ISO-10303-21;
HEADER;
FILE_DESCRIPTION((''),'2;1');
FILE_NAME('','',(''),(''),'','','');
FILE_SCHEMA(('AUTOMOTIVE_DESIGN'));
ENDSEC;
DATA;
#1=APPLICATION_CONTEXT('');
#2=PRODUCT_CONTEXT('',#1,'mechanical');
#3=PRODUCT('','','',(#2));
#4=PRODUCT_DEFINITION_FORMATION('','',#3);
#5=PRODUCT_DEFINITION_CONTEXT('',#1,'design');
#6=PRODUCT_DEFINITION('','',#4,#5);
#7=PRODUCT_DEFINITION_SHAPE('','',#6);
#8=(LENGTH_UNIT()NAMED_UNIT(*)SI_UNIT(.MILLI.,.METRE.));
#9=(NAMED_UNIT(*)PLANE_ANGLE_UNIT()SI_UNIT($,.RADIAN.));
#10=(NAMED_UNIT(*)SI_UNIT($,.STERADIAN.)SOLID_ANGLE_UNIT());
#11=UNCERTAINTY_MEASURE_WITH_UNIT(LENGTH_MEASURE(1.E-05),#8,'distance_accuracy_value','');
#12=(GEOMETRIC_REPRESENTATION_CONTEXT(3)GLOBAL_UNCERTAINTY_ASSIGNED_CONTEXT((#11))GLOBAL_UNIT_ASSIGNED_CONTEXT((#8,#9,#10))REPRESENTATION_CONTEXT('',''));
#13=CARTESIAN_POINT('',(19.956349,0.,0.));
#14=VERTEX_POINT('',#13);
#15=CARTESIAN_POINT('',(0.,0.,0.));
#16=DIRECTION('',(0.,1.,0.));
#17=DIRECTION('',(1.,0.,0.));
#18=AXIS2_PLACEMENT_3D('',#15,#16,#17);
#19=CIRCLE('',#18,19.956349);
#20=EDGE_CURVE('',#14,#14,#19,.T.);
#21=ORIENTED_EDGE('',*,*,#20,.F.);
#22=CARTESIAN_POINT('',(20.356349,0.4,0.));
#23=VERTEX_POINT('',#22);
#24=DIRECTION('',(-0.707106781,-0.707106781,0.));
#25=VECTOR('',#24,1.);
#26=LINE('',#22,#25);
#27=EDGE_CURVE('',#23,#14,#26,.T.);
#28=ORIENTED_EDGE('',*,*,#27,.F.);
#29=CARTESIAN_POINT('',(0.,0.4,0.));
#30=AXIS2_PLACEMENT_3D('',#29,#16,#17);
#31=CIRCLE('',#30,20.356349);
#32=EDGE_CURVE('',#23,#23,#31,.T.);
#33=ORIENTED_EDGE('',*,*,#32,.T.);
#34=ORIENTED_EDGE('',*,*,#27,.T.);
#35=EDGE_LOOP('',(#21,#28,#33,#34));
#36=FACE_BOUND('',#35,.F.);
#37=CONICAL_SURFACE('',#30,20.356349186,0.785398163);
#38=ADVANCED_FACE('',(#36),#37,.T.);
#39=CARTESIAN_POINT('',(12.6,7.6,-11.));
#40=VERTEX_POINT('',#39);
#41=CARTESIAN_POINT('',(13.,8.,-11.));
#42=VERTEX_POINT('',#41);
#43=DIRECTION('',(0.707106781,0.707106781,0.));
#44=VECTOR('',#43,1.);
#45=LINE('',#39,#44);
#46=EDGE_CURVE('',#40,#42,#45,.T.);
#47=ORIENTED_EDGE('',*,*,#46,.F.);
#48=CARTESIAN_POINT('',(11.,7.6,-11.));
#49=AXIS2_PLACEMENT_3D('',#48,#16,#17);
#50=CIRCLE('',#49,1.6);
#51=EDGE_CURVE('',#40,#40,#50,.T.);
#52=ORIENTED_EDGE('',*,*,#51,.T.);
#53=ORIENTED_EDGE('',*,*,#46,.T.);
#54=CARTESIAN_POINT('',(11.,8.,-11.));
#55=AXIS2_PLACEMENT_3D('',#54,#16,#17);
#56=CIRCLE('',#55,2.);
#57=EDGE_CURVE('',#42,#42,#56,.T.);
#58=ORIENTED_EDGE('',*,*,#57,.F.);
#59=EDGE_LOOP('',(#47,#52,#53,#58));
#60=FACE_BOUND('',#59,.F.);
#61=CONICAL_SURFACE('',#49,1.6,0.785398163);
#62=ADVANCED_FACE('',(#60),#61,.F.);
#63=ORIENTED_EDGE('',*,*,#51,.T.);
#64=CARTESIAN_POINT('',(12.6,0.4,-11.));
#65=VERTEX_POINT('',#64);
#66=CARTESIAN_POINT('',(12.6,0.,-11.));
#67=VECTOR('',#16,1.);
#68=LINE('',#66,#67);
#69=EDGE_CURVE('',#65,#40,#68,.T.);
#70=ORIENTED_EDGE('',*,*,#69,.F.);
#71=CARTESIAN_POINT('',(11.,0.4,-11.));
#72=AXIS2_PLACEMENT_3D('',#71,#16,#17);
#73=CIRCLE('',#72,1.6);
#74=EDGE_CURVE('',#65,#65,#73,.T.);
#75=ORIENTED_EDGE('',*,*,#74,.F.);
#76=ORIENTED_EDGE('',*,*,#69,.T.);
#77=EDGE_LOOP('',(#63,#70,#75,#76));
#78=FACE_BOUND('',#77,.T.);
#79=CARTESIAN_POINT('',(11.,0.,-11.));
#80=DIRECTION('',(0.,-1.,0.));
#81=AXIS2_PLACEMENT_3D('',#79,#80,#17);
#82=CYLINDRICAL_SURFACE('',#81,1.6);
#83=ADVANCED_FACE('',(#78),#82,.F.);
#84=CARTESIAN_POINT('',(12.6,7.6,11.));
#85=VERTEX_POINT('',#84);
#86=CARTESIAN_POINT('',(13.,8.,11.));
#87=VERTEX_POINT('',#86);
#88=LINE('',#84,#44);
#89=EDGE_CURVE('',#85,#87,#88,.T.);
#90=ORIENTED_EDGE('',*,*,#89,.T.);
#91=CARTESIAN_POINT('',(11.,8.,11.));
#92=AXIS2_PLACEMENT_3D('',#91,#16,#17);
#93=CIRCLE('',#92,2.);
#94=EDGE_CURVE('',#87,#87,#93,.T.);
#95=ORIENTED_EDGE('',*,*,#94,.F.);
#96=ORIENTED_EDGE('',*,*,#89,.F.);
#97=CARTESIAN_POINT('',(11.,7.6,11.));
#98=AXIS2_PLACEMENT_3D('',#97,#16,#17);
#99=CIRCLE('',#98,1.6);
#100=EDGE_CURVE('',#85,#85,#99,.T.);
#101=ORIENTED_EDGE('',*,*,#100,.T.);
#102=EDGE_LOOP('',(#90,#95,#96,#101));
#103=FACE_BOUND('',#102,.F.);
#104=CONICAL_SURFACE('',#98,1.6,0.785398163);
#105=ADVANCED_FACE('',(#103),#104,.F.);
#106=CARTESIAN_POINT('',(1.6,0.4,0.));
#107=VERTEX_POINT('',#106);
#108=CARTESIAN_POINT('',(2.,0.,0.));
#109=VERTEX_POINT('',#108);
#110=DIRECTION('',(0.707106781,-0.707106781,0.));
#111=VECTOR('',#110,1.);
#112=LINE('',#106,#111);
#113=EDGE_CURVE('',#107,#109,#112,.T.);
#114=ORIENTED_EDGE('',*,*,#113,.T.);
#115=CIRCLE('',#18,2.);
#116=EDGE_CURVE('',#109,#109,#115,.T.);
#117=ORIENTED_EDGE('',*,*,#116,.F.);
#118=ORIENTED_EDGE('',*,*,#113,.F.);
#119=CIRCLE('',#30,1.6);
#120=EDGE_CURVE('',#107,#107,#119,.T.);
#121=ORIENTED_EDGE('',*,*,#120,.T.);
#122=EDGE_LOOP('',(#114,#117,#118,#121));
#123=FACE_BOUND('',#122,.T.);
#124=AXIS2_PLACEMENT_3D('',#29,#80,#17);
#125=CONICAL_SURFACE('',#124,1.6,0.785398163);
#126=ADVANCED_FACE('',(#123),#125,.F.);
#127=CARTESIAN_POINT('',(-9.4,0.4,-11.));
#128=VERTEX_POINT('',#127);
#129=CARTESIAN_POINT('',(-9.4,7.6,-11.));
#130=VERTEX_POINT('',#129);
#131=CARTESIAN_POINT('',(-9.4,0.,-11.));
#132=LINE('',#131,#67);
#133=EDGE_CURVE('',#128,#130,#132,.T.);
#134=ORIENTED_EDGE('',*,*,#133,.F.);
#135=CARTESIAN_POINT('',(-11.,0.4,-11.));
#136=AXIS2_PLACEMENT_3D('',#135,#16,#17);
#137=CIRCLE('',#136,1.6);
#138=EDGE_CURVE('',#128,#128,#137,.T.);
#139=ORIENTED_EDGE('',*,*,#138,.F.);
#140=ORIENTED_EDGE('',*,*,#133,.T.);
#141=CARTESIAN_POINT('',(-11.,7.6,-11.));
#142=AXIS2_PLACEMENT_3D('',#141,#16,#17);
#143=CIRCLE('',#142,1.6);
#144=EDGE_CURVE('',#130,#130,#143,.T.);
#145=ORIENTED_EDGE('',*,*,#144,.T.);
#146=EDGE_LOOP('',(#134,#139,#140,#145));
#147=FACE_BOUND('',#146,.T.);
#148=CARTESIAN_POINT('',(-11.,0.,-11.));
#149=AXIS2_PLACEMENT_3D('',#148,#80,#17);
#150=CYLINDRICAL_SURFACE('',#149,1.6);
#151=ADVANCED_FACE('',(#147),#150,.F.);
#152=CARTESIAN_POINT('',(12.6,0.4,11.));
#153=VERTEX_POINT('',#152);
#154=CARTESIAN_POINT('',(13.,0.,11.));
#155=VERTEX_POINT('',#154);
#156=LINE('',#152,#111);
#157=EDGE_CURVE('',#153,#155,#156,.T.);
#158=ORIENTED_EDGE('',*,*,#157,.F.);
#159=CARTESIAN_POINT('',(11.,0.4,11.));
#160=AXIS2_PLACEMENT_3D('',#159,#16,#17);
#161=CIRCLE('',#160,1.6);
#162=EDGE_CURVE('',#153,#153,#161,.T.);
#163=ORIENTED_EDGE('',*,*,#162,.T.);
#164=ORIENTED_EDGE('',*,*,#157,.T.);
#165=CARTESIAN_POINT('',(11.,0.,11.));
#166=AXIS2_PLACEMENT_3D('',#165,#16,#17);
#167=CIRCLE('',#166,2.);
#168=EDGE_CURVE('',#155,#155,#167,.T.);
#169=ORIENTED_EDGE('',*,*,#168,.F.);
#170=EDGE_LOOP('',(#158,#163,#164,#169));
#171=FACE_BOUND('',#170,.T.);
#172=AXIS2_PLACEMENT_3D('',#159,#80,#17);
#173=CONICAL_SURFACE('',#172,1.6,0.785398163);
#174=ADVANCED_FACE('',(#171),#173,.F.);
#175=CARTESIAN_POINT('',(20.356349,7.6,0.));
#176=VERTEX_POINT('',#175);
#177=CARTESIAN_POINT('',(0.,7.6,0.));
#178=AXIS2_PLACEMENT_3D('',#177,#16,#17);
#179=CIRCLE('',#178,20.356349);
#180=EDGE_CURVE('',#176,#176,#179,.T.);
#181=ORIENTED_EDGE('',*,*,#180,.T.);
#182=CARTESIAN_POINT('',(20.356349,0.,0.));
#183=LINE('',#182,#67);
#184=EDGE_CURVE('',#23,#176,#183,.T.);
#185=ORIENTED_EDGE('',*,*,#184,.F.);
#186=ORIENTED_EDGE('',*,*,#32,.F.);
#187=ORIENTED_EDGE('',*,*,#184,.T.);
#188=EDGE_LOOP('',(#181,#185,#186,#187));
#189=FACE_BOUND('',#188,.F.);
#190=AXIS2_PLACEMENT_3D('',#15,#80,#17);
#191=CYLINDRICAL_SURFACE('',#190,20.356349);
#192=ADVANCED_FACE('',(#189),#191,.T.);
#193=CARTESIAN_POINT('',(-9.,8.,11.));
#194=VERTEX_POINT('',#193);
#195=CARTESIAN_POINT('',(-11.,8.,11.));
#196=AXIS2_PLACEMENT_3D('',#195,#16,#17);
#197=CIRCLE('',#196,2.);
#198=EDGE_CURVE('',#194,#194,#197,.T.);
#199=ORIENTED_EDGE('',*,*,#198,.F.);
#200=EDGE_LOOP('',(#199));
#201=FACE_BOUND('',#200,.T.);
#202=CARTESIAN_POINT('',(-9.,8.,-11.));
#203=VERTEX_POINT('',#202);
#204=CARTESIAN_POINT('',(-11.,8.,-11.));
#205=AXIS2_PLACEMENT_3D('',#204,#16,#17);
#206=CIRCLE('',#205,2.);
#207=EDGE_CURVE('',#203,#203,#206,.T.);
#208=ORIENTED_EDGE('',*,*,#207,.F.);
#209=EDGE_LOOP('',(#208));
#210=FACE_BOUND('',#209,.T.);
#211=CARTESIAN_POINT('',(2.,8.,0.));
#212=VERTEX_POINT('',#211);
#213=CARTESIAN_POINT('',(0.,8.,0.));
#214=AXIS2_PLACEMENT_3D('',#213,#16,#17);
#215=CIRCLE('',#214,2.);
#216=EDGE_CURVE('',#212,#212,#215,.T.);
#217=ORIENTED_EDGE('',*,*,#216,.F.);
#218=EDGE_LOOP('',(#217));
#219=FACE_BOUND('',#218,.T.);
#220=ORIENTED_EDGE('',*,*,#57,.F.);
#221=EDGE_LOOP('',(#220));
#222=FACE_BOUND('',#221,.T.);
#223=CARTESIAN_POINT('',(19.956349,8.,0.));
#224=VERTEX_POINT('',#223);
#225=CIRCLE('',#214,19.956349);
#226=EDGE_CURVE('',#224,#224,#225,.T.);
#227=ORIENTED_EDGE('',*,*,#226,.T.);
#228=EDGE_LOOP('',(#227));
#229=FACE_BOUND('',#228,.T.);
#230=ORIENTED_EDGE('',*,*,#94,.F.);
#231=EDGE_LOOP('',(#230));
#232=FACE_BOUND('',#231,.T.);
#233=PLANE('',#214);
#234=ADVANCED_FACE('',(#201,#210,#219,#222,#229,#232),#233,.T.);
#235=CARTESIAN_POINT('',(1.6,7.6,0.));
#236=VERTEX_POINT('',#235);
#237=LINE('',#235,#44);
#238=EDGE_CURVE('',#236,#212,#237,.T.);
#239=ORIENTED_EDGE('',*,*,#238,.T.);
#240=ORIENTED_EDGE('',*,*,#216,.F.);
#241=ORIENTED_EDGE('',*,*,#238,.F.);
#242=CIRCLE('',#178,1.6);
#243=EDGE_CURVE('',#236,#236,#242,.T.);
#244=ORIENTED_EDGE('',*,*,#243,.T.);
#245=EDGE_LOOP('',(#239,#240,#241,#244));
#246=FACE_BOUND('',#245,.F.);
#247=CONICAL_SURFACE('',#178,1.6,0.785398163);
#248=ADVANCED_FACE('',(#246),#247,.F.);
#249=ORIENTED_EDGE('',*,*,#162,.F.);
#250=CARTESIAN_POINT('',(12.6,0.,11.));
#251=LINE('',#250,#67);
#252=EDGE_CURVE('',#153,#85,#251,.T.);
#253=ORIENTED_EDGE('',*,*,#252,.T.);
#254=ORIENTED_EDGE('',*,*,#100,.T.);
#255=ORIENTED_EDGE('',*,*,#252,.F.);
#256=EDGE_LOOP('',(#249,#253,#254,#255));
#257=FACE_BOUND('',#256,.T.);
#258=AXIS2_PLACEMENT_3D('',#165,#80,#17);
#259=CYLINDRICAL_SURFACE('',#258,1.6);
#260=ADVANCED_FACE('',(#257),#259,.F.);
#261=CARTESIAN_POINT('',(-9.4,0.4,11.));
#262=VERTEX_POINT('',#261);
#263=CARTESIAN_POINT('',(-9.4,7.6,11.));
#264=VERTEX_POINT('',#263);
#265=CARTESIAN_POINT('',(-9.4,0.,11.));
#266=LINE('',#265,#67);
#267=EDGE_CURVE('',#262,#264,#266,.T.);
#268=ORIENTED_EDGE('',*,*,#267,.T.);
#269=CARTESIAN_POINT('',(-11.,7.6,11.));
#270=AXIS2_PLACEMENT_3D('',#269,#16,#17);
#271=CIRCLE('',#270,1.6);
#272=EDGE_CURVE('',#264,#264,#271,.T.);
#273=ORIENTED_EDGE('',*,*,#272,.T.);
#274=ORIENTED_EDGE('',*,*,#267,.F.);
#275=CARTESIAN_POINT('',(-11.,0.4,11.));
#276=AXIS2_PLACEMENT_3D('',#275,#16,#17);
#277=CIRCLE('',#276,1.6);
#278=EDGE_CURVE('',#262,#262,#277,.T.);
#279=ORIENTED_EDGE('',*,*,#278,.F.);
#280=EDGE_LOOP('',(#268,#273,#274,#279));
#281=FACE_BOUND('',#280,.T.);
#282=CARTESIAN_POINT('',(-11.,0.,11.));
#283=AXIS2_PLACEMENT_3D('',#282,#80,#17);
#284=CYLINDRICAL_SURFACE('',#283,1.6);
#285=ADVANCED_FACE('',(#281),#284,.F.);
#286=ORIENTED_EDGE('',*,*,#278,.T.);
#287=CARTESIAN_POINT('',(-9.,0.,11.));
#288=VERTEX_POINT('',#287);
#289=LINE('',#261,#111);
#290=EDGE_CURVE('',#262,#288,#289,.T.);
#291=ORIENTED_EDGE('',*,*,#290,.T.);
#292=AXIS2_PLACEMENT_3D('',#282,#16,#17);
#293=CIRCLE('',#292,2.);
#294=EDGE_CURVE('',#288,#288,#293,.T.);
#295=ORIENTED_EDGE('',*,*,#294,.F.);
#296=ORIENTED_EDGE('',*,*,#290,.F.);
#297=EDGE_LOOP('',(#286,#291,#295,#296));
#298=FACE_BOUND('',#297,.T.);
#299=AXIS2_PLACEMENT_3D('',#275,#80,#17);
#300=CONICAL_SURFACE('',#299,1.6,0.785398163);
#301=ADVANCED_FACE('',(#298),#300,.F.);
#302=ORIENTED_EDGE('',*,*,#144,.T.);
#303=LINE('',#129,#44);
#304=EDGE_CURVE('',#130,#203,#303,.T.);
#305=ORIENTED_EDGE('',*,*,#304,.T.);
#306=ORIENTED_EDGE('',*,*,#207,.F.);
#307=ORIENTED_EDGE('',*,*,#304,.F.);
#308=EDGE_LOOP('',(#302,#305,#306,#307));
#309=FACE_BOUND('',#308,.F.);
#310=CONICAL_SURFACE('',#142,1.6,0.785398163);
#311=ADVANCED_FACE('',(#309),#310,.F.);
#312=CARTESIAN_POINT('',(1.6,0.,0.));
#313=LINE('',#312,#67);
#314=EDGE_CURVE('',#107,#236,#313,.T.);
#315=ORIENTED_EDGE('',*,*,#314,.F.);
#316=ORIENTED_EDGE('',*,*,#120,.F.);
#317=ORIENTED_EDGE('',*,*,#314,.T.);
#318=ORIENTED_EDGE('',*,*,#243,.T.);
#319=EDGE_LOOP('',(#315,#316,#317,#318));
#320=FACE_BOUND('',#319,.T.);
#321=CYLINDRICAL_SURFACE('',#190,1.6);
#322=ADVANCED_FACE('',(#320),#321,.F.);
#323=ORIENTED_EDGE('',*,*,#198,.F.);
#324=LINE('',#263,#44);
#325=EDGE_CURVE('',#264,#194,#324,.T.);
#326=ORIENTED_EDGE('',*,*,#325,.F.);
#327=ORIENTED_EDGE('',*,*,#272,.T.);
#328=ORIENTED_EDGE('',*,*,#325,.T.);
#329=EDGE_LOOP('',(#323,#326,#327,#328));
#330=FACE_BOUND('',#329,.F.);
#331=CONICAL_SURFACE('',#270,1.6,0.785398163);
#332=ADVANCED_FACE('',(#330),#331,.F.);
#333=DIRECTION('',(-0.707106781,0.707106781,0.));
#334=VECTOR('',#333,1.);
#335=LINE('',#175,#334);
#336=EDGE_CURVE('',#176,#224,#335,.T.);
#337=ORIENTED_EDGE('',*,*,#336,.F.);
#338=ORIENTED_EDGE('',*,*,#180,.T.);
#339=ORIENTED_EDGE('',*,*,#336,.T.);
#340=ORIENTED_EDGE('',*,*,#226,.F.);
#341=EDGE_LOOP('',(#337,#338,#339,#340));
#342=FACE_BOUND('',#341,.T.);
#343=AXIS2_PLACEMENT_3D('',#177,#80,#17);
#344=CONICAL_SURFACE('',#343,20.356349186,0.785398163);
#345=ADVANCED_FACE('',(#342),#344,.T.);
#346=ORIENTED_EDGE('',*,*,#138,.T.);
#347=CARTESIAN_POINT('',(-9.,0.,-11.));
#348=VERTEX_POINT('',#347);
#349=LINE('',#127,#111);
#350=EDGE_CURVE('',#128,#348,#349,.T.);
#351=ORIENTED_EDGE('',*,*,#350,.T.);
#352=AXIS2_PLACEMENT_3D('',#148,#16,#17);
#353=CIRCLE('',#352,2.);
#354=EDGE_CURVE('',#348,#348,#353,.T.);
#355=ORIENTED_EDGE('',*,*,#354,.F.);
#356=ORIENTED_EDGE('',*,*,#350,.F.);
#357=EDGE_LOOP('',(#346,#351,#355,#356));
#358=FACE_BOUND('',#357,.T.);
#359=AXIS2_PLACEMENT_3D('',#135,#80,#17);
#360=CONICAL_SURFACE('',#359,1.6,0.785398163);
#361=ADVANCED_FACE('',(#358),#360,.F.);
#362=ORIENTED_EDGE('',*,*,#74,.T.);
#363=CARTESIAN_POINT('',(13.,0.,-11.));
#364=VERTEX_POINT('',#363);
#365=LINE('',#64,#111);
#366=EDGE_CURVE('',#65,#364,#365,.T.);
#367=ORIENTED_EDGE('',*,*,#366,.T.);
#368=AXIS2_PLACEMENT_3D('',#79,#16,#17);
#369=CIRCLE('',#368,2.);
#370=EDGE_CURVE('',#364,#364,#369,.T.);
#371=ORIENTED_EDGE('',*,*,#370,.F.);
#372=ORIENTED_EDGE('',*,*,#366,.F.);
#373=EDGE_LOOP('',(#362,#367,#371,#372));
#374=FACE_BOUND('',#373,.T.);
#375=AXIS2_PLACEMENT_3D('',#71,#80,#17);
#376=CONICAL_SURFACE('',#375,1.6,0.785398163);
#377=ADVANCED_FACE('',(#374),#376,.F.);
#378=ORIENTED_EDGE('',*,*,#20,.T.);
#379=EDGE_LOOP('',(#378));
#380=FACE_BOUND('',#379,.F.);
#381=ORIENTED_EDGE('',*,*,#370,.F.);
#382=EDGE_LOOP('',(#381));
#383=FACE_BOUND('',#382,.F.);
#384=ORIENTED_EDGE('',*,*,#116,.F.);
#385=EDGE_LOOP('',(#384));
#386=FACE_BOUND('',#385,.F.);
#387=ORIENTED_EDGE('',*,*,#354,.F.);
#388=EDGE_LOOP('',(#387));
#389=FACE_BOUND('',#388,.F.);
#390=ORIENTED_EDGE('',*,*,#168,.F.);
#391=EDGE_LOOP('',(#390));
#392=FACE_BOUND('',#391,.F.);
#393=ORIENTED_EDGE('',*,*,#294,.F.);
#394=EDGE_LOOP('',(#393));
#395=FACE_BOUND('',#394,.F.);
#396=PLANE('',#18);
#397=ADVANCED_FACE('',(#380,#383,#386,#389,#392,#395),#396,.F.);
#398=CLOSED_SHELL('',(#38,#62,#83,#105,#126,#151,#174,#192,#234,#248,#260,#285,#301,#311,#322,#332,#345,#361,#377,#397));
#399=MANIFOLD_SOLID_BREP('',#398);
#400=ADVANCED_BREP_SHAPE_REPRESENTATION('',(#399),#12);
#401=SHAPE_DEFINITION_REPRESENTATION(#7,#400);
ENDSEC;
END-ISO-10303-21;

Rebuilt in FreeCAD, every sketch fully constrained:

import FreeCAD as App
import Part
import Sketcher
from FreeCAD import Vector


def edges_at(feature, points):
    """Names of the edges that pass closest to the given points."""
    edges = feature.Shape.Edges
    near = lambda p: min(range(len(edges)), key=lambda i: edges[i].distToShape(Part.Vertex(*p))[0])
    return sorted({f"Edge{near(p) + 1}" for p in points})

doc = App.newDocument("Part")
body = doc.addObject("PartDesign::Body", "Body")

sketch1 = body.newObject("Sketcher::SketchObject", "Sketch")
sketch1.AttachmentSupport = (doc.getObject("XZ_Plane"), [""])
sketch1.MapMode = "FlatFace"
sketch1.addGeometry([
    Part.Circle(Vector(0, 0, 0), Vector(0, 0, 1), 20.4),
    Part.Circle(Vector(-11, 11, 0), Vector(0, 0, 1), 1.6),
    Part.Circle(Vector(0, 0, 0), Vector(0, 0, 1), 1.6),
    Part.Circle(Vector(11, 11, 0), Vector(0, 0, 1), 1.6),
    Part.Circle(Vector(-11, -11, 0), Vector(0, 0, 1), 1.6),
    Part.Circle(Vector(11, -11, 0), Vector(0, 0, 1), 1.6),
], False)
sketch1.addConstraint([
    Sketcher.Constraint("Coincident", 0, 3, -1, 1),
    Sketcher.Constraint("Coincident", 2, 3, -1, 1),
    Sketcher.Constraint("Equal", 1, 2),
    Sketcher.Constraint("Equal", 2, 3),
    Sketcher.Constraint("Equal", 3, 4),
    Sketcher.Constraint("Equal", 4, 5),
    Sketcher.Constraint("Symmetric", 3, 3, 4, 3, -1, 1),
    Sketcher.Constraint("Symmetric", 1, 3, 5, 3, -1, 1),
    Sketcher.Constraint("Symmetric", 1, 3, 3, 3, -2),
    Sketcher.Constraint("Diameter", 1, 3.2),
    Sketcher.Constraint("DistanceX", 1, 3, -1, 1, 11.0),
    Sketcher.Constraint("DistanceY", -1, 1, 1, 3, 11.0),
    Sketcher.Constraint("Diameter", 0, 40.712698),
])
pad1 = body.newObject("PartDesign::Pad", "Pad")
pad1.Profile = sketch1
pad1.Length = 8
pad1.Reversed = True
doc.recompute()

chamfer = body.newObject("PartDesign::Chamfer", "Chamfer")
chamfer.Base = (pad1, edges_at(pad1, [
    (9.4, 0, -11),
    (9.4, 8, -11),
    (9.4, 0, 11),
    (9.4, 8, 11),
    (-20.356, 0, 0),
    (-12.6, 0, 11),
    (-12.6, 8, 11),
    (-20.356, 8, 0),
    (-1.6, 0, 0),
    (-1.6, 8, 0),
    (-12.6, 0, -11),
    (-12.6, 8, -11),
]))
chamfer.Size = 0.4

doc.recompute()
